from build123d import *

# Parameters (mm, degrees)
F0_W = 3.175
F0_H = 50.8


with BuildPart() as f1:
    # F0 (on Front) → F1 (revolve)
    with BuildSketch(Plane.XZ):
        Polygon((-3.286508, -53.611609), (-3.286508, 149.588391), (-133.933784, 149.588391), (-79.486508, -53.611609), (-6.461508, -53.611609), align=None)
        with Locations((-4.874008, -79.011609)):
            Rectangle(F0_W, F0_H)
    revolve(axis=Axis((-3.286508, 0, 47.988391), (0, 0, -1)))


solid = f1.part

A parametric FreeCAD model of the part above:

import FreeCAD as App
import Part
import Sketcher

V = App.Vector
Q = App.Units.Quantity

doc = App.newDocument("Part")
params = doc.addObject("Spreadsheet::Sheet", "Params")
for row, (alias, value) in enumerate([
    ("sketch1_height", "2 in"),
    ("sketch1_height2", "10 in"),
    ("sketch1_width", "2.875 in"),
    ("revolution_angle", "360 deg"),
], start=1):
    params.set(f"A{row}", alias)
    params.set(f"B{row}", "=" + value)
    params.setAlias(f"B{row}", alias)

body = doc.addObject("PartDesign::Body", "Body")

sketch1 = body.newObject("Sketcher::SketchObject", "Sketch")
sketch1.AttachmentSupport = (doc.getObject("XZ_Plane"), [""])
sketch1.MapMode = "FlatFace"
sketch1.addGeometry(Part.LineSegment(V(-3.3, 149.6, 0), V(-133.9, 149.6, 0)), False)
sketch1.addGeometry(Part.LineSegment(V(-133.9, 149.6, 0), V(-79.5, -53.6, 0)), False)
sketch1.addGeometry(Part.LineSegment(V(-79.5, -53.6, 0), V(-6.5, -53.6, 0)), False)
sketch1.addGeometry(Part.LineSegment(V(-6.5, -53.6, 0), V(-6.5, -104.4, 0)), False)
sketch1.addGeometry(Part.LineSegment(V(-6.5, -104.4, 0), V(-3.3, -104.4, 0)), False)
sketch1.addGeometry(Part.LineSegment(V(-3.3, -104.4, 0), V(-3.3, 149.6, 0)), False)
sketch1.addGeometry(Part.LineSegment(V(-3.3, 149.6, 0), V(-3.3, -104.4, 0)), True)
sketch1.addConstraint(Sketcher.Constraint("Coincident", 0, 2, 1, 1))
sketch1.addConstraint(Sketcher.Constraint("Coincident", 1, 2, 2, 1))
sketch1.addConstraint(Sketcher.Constraint("Coincident", 2, 2, 3, 1))
sketch1.addConstraint(Sketcher.Constraint("Coincident", 3, 2, 4, 1))
sketch1.addConstraint(Sketcher.Constraint("Coincident", 4, 2, 5, 1))
sketch1.addConstraint(Sketcher.Constraint("Coincident", 5, 2, 0, 1))
sketch1.addConstraint(Sketcher.Constraint("Horizontal", 0))
sketch1.addConstraint(Sketcher.Constraint("Horizontal", 2))
sketch1.addConstraint(Sketcher.Constraint("Vertical", 3))
sketch1.addConstraint(Sketcher.Constraint("Horizontal", 4))
sketch1.addConstraint(Sketcher.Constraint("Vertical", 5))
sketch1.addConstraint(Sketcher.Constraint("Vertical", 6))
sketch1.addConstraint(Sketcher.Constraint("Coincident", 6, 1, 5, 2))
sketch1.addConstraint(Sketcher.Constraint("Horizontal", 3, 2, 6, 2))
sketch1.addConstraint(Sketcher.Constraint("DistanceY", 3, 2, 3, 1, Q("2 in")))
sketch1.addConstraint(Sketcher.Constraint("DistanceY", 5, 1, 5, 2, Q("10 in")))
sketch1.addConstraint(Sketcher.Constraint("Angle", 1, Q("-75 deg")))
sketch1.addConstraint(Sketcher.Constraint("DistanceX", 1, 2, 4, 2, Q("3 in")))
sketch1.addConstraint(Sketcher.Constraint("DistanceX", 2, 1, 2, 2, Q("2.875 in")))
sketch1.addConstraint(Sketcher.Constraint("DistanceY", -1, 1, 0, 2, Q("149.588391 mm")))
sketch1.addConstraint(Sketcher.Constraint("DistanceX", 1, 2, -1, 1, Q("79.486508 mm")))
sketch1.setExpression("Constraints[14]", "Params.sketch1_height")
sketch1.setExpression("Constraints[15]", "Params.sketch1_height2")
sketch1.setExpression("Constraints[18]", "Params.sketch1_width")
revolution = body.newObject("PartDesign::Revolution", "Revolution")
revolution.Profile = sketch1
revolution.ReferenceAxis = (sketch1, ["Axis0"])
revolution.setExpression("Angle", "Params.revolution_angle")

doc.recompute()
